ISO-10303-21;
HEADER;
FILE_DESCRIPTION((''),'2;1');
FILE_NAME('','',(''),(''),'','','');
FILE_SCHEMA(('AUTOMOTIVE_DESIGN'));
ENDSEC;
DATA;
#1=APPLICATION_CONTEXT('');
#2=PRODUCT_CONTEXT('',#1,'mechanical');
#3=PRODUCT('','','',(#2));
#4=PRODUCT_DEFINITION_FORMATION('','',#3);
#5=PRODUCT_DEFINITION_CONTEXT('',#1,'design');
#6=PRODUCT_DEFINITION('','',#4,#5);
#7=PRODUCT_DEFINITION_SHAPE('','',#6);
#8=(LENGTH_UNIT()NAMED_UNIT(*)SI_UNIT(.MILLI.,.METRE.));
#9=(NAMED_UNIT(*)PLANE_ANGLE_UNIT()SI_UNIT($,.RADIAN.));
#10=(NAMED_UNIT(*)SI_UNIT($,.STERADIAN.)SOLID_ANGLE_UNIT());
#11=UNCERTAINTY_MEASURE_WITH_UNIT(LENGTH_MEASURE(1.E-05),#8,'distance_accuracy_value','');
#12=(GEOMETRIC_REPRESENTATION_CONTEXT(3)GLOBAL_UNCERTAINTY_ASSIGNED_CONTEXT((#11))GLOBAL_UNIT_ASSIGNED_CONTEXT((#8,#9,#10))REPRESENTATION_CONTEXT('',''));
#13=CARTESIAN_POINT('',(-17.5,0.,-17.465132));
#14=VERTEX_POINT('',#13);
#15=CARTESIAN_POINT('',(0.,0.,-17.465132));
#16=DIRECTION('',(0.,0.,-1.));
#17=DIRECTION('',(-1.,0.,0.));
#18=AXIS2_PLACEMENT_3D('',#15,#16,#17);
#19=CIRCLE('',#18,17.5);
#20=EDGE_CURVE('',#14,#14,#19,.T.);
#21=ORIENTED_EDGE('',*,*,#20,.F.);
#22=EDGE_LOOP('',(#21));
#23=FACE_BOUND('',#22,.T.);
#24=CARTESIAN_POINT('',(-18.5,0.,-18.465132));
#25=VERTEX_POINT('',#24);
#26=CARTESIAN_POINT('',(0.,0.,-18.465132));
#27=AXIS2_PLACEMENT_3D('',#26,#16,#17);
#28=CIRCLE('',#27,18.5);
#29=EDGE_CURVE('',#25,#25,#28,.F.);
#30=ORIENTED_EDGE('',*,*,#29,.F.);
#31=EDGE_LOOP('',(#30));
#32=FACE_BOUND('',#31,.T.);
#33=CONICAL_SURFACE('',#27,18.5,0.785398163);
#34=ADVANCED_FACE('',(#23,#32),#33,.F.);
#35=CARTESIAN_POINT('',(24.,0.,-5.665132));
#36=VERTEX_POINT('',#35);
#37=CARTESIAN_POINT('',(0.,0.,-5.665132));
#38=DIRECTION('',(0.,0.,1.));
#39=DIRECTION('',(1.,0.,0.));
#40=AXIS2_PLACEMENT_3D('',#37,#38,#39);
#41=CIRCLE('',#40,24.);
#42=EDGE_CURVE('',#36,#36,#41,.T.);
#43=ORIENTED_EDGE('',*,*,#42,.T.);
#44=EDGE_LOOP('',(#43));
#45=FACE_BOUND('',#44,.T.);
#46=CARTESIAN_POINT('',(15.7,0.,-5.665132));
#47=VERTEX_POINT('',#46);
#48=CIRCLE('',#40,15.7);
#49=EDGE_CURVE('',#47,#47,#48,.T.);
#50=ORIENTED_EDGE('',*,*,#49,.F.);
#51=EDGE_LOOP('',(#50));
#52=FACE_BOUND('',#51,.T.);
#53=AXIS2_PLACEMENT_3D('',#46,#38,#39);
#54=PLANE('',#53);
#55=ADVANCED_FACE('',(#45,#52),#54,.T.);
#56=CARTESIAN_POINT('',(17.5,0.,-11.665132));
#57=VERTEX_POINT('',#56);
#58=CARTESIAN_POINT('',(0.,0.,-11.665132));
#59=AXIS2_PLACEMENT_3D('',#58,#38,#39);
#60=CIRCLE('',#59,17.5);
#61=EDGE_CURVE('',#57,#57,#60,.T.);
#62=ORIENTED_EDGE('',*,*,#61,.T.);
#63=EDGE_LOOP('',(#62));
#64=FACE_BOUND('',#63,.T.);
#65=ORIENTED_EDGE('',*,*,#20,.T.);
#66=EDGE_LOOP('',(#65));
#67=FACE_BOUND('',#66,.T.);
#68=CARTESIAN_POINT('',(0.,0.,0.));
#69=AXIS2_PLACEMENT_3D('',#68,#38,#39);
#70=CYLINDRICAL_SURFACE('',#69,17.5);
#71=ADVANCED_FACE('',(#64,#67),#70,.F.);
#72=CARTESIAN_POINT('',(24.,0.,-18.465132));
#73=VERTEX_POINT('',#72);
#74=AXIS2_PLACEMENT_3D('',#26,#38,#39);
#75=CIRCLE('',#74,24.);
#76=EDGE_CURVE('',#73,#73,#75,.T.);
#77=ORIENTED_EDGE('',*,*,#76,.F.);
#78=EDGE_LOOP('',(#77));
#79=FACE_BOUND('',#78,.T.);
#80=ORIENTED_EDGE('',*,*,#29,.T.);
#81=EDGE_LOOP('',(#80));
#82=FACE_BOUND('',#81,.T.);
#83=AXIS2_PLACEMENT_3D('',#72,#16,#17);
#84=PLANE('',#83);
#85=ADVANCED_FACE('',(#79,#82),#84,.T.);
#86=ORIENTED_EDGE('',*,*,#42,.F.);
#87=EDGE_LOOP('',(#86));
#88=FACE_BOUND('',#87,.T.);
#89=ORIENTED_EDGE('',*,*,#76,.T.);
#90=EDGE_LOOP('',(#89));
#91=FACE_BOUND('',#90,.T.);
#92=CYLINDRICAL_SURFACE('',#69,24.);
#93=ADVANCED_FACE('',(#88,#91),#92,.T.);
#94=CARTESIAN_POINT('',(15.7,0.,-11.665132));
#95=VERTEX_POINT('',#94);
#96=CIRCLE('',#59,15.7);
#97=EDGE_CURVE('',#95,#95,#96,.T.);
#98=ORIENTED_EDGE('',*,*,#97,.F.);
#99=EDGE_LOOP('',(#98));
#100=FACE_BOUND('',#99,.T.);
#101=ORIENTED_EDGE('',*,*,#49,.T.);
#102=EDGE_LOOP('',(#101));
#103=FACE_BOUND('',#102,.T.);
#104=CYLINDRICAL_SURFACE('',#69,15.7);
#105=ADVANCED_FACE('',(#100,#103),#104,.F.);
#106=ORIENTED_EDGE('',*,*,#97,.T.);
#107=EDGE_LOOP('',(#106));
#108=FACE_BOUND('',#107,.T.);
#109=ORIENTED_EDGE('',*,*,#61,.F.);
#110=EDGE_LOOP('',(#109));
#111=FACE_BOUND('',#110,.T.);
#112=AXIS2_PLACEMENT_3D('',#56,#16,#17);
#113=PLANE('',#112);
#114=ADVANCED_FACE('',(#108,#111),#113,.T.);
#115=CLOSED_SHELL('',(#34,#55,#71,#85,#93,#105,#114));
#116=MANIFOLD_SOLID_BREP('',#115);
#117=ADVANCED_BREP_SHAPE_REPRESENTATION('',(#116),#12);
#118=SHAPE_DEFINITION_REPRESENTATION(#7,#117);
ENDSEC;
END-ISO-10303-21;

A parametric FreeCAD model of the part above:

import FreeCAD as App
import Part
import Sketcher

V = App.Vector
Q = App.Units.Quantity


def edges_at(feature, points):
    """Names of the edges that pass closest to the given points."""
    edges = feature.Shape.Edges
    near = lambda p: min(range(len(edges)), key=lambda i: edges[i].distToShape(Part.Vertex(*p))[0])
    return sorted({f"Edge{near(p) + 1}" for p in points})

doc = App.newDocument("Part")
body = doc.addObject("PartDesign::Body", "Body")

sketch1 = body.newObject("Sketcher::SketchObject", "Sketch")
sketch1.AttachmentSupport = (doc.getObject("XZ_Plane"), [""])
sketch1.MapMode = "FlatFace"
sketch1.addGeometry(Part.LineSegment(V(24, -5.7, 0), V(24, -18.5, 0)), False)
sketch1.addGeometry(Part.LineSegment(V(24, -18.5, 0), V(17.5, -18.5, 0)), False)
sketch1.addGeometry(Part.LineSegment(V(17.5, -18.5, 0), V(17.5, -11.7, 0)), False)
sketch1.addGeometry(Part.LineSegment(V(17.5, -11.7, 0), V(15.7, -11.7, 0)), False)
sketch1.addGeometry(Part.LineSegment(V(15.7, -11.7, 0), V(15.7, -5.7, 0)), False)
sketch1.addGeometry(Part.LineSegment(V(15.7, -5.7, 0), V(24, -5.7, 0)), False)
sketch1.addConstraint(Sketcher.Constraint("Coincident", 0, 2, 1, 1))
sketch1.addConstraint(Sketcher.Constraint("Coincident", 1, 2, 2, 1))
sketch1.addConstraint(Sketcher.Constraint("Coincident", 2, 2, 3, 1))
sketch1.addConstraint(Sketcher.Constraint("Coincident", 3, 2, 4, 1))
sketch1.addConstraint(Sketcher.Constraint("Coincident", 4, 2, 5, 1))
sketch1.addConstraint(Sketcher.Constraint("Coincident", 5, 2, 0, 1))
sketch1.addConstraint(Sketcher.Constraint("Vertical", 0))
sketch1.addConstraint(Sketcher.Constraint("Horizontal", 1))
sketch1.addConstraint(Sketcher.Constraint("Vertical", 2))
sketch1.addConstraint(Sketcher.Constraint("Horizontal", 3))
sketch1.addConstraint(Sketcher.Constraint("Vertical", 4))
sketch1.addConstraint(Sketcher.Constraint("Horizontal", 5))
sketch1.addConstraint(Sketcher.Constraint("DistanceY", 4, 1, 4, 2, Q("6 mm")))
sketch1.addConstraint(Sketcher.Constraint("DistanceX", 1, 2, 1, 1, Q("6.5 mm")))
sketch1.addConstraint(Sketcher.Constraint("DistanceX", 3, 2, 3, 1, Q("1.8 mm")))
sketch1.addConstraint(Sketcher.Constraint("DistanceY", 0, 2, 0, 1, Q("12.8 mm")))
sketch1.addConstraint(Sketcher.Constraint("DistanceX", -1, 1, 0, 2, Q("24 mm")))
sketch1.addConstraint(Sketcher.Constraint("DistanceY", 0, 2, -1, 1, Q("18.465132 mm")))
revolution = body.newObject("PartDesign::Revolution", "Revolution")
revolution.Profile = sketch1
revolution.ReferenceAxis = (sketch1, ["V_Axis"])
revolution.Angle = 360
doc.recompute()

chamfer = body.newObject("PartDesign::Chamfer", "Chamfer")
chamfer.Base = (revolution, edges_at(revolution, [(-17.5, 0, -18.465)]))
chamfer.Size = 1

doc.recompute()
